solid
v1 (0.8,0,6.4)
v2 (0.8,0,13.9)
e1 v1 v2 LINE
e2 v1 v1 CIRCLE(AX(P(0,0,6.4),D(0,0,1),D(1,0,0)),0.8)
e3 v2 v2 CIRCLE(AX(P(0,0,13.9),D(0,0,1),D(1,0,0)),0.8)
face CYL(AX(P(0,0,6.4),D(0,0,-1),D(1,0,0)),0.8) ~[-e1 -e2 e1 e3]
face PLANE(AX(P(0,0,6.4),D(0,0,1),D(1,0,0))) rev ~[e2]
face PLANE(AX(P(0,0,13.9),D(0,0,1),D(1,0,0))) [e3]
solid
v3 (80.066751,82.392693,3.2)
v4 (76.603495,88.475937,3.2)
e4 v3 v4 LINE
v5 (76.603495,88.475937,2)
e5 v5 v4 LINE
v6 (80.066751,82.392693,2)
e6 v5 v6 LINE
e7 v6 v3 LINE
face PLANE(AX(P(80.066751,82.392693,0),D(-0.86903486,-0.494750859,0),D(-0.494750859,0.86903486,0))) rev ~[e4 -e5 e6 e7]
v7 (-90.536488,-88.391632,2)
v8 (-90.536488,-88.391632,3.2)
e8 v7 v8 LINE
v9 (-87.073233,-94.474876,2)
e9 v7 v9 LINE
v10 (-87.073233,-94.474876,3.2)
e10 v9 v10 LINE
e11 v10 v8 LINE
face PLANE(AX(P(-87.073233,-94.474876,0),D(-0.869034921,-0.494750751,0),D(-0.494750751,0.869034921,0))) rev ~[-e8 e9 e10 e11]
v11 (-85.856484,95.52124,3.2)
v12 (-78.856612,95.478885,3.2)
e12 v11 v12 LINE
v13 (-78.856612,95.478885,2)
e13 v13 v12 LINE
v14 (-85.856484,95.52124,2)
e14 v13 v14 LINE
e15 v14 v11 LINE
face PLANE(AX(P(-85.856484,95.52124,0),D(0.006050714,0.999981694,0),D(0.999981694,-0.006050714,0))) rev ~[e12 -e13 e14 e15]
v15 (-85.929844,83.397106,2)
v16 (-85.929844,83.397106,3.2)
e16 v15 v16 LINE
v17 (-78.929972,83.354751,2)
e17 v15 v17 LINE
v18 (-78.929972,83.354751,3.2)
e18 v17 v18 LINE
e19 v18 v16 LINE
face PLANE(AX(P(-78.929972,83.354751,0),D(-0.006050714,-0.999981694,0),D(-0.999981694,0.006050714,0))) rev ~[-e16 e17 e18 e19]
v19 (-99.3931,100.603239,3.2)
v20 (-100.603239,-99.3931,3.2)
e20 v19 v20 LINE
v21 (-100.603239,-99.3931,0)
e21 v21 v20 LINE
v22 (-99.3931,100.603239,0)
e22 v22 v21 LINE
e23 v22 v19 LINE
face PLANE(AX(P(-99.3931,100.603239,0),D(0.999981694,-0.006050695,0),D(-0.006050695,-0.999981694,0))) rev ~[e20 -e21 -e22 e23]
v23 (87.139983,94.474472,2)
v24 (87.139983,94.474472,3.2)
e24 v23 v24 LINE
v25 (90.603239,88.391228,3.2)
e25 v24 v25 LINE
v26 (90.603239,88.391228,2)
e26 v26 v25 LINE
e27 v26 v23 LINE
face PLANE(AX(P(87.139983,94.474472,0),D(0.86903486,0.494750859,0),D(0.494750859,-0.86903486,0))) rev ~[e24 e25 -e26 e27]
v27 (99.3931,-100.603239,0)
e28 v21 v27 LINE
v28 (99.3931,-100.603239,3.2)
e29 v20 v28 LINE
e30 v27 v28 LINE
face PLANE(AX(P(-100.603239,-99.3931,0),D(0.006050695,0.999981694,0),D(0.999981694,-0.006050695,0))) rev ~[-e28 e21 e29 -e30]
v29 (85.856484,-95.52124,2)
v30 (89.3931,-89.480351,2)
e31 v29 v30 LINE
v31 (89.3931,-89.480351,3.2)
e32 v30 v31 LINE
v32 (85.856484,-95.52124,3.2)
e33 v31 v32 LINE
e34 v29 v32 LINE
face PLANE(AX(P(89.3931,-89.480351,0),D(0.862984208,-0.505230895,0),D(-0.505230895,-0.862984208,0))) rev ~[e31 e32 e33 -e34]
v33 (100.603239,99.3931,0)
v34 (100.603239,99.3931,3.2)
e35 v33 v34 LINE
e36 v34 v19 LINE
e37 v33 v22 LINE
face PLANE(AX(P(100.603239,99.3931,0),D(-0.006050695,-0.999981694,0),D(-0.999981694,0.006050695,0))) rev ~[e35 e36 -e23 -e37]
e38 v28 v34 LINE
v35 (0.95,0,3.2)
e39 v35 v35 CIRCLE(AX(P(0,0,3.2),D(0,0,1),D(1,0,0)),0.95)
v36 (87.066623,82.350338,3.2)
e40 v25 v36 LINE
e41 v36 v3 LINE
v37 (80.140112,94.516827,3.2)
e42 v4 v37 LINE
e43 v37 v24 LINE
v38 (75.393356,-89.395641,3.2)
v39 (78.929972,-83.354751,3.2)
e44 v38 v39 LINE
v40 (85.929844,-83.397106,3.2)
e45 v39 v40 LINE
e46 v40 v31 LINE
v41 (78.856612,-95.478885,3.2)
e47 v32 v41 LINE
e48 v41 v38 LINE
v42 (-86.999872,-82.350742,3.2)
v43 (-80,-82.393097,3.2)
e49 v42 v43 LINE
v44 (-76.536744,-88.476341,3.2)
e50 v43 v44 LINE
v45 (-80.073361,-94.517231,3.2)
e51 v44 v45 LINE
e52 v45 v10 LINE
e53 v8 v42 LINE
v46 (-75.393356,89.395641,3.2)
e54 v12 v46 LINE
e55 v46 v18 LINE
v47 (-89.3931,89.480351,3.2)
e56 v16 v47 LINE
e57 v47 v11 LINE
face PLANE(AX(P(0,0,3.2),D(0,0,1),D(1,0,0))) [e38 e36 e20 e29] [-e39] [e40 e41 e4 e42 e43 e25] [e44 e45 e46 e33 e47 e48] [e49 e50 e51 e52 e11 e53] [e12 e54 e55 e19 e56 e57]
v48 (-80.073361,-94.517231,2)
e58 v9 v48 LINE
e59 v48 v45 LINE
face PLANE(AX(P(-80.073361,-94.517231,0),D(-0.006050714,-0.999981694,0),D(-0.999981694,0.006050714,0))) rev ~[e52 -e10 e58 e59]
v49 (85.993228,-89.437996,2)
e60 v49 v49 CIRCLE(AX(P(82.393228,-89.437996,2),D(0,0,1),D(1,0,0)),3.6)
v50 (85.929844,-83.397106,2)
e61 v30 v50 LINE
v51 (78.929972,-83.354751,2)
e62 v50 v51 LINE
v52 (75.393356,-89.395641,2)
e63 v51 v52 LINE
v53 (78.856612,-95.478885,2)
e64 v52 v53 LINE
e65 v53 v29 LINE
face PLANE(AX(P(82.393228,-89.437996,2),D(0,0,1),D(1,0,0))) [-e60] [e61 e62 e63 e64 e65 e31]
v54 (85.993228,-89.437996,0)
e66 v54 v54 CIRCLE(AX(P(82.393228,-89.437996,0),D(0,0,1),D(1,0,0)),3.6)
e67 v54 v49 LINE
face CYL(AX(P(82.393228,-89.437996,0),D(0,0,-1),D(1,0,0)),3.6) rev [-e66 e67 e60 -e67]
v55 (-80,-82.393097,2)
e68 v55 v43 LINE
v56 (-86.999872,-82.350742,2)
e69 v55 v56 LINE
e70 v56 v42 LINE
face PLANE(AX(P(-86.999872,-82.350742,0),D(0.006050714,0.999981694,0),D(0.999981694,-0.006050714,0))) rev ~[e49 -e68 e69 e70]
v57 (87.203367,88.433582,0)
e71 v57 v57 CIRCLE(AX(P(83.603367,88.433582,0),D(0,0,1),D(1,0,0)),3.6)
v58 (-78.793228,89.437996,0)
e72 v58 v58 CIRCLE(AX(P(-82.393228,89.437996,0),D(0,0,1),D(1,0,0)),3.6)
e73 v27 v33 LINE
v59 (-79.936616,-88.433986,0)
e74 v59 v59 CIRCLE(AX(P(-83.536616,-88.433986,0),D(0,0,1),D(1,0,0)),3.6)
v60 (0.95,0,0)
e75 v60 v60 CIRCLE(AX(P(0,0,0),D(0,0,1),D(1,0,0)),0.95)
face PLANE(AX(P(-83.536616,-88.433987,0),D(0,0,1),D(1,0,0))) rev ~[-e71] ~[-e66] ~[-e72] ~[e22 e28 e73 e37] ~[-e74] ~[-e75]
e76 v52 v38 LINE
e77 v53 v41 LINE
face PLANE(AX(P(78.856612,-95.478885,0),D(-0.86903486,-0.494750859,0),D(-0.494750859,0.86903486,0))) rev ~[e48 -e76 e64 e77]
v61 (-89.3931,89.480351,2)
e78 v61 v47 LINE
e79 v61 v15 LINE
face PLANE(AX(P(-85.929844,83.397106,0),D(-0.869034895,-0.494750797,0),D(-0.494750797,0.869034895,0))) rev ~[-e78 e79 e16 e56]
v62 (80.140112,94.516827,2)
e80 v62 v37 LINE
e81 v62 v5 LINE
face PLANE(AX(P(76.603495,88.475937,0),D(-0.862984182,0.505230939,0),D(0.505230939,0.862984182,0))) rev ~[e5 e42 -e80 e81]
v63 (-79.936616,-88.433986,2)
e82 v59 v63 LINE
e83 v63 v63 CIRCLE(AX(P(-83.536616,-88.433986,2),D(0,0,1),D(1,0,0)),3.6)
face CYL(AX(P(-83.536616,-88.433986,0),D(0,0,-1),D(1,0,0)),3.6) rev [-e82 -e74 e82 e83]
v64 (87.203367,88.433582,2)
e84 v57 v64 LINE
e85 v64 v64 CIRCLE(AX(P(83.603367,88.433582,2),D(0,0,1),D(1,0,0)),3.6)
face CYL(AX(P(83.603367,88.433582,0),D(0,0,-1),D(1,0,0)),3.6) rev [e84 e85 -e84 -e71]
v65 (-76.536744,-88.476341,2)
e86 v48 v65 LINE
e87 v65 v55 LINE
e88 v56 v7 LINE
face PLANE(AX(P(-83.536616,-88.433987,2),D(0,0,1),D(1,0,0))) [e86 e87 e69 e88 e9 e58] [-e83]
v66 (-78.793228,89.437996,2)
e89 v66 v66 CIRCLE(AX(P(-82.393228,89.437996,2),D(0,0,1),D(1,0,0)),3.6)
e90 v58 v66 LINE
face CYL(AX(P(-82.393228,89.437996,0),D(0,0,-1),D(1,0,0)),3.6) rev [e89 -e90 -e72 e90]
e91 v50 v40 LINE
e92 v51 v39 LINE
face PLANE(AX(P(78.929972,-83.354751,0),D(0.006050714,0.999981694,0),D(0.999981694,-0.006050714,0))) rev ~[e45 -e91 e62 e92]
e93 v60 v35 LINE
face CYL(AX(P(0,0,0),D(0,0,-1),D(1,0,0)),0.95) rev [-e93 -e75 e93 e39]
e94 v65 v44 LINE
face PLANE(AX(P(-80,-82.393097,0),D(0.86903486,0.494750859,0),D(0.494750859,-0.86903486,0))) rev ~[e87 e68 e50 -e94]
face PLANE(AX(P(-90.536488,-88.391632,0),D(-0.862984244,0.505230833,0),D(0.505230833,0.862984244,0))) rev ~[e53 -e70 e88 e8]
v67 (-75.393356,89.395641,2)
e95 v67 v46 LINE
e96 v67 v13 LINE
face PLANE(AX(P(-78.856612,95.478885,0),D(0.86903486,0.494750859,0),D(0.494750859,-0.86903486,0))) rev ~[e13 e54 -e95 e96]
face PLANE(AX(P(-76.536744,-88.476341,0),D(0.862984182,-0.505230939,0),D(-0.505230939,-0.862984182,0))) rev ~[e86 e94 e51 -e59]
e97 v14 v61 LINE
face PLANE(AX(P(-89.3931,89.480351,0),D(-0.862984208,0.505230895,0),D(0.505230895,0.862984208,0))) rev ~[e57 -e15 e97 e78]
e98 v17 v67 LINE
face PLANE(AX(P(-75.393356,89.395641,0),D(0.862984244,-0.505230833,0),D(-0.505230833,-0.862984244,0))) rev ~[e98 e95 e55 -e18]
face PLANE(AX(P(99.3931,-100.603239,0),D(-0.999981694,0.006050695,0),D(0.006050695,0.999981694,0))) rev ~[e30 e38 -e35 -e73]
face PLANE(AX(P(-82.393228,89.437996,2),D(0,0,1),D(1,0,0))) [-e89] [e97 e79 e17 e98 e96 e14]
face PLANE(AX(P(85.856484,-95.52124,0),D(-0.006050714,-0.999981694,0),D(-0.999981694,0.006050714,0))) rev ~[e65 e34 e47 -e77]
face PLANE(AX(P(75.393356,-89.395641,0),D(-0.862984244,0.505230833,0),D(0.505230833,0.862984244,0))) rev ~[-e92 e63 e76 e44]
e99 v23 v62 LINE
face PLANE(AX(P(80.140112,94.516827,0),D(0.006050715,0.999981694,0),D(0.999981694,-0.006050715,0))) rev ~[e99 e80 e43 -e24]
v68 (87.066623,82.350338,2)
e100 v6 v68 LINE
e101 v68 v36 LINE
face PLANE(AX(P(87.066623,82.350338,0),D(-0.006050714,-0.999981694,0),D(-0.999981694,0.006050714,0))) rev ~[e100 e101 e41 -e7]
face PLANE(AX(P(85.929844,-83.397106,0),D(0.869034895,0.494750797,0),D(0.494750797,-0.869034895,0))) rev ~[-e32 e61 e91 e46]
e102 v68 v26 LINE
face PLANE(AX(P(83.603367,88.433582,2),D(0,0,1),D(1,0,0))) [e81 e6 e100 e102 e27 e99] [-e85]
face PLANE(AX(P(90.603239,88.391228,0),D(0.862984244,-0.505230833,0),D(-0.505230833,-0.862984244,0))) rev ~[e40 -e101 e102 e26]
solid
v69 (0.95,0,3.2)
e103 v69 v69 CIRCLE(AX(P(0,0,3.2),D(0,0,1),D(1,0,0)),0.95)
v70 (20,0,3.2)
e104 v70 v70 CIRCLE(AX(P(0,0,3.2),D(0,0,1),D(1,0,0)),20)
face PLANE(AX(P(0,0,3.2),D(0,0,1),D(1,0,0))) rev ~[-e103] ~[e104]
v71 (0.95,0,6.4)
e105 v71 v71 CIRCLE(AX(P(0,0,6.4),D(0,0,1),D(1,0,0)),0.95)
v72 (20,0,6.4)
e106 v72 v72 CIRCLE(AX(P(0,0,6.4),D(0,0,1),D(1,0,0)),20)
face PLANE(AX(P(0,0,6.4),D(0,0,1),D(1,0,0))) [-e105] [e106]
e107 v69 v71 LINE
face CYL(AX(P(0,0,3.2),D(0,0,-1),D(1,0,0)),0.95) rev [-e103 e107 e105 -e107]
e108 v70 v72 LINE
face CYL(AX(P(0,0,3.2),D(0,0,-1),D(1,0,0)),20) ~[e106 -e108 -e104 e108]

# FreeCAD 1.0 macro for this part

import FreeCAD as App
import Part
import Sketcher

V = App.Vector


def add_polygon(sketch, points):
    """Adds a closed chain of lines whose ends are joined by coincident constraints."""
    first, n = sketch.GeometryCount, len(points)
    for a, b in zip(points, points[1:] + points[:1]):
        sketch.addGeometry(Part.LineSegment(App.Vector(*a, 0), App.Vector(*b, 0)), False)
    for i in range(n):
        sketch.addConstraint(Sketcher.Constraint("Coincident", first + i, 2, first + (i + 1) % n, 1))

doc = App.newDocument("Part")
params = doc.addObject("Spreadsheet::Sheet", "Params")
for row, (alias, value) in enumerate([
    ("sketch1_diameter", "1.9 mm"),
    ("sketch1_length", "200 mm"),
    ("sketch1_length2", "7 mm"),
    ("pad1_length", "3.2 mm"),
    ("sketch2_diameter", "7.2 mm"),
    ("sketch2_length", "7 mm"),
    ("pad2_length", "2 mm"),
    ("sketch3_diameter", "40 mm"),
    ("sketch3_diameter2", "1.9 mm"),
    ("pad3_length", "3.2 mm"),
    ("sketch4_diameter", "1.6 mm"),
    ("pad4_length", "7.5 mm"),
], start=1):
    params.set(f"A{row}", alias)
    params.set(f"B{row}", "=" + value)
    params.setAlias(f"B{row}", alias)

body = doc.addObject("PartDesign::Body", "Body")

sketch1 = body.newObject("Sketcher::SketchObject", "Sketch")
sketch1.AttachmentSupport = (doc.getObject("XY_Plane"), [""])
sketch1.MapMode = "FlatFace"
add_polygon(sketch1, [(100.6, 99.4), (-99.4, 100.6), (-100.6, -99.4), (99.4, -100.6)])
add_polygon(sketch1, [(-80.1, -94.5), (-87.1, -94.5), (-90.5, -88.4), (-87, -82.4), (-80, -82.4), (-76.5, -88.5)])
add_polygon(sketch1, [(78.9, -83.4), (85.9, -83.4), (89.4, -89.5), (85.9, -95.5), (78.9, -95.5), (75.4, -89.4)])
sketch1.addGeometry(Part.Circle(V(0, 0, 0), V(0, 0, 1), 0.9), False)
add_polygon(sketch1, [(-85.9, 95.5), (-78.9, 95.5), (-75.4, 89.4), (-78.9, 83.4), (-85.9, 83.4), (-89.4, 89.5)])
add_polygon(sketch1, [(80.1, 94.5), (87.1, 94.5), (90.6, 88.4), (87.1, 82.4), (80.1, 82.4), (76.6, 88.5)])
sketch1.addConstraint(Sketcher.Constraint("Coincident", 16, 3, -1, 1))
sketch1.addConstraint(Sketcher.Constraint("Symmetric", 0, 2, 2, 2, -1, 1))
sketch1.addConstraint(Sketcher.Constraint("Symmetric", 1, 2, 3, 2, -1, 1))
sketch1.addConstraint(Sketcher.Constraint("Symmetric", 13, 2, 17, 2, -1, 1))
sketch1.addConstraint(Sketcher.Constraint("Symmetric", 14, 2, 18, 2, -1, 1))
sketch1.addConstraint(Sketcher.Constraint("Symmetric", 15, 2, 19, 2, -1, 1))
sketch1.addConstraint(Sketcher.Constraint("Symmetric", 10, 2, 20, 2, -1, 1))
sketch1.addConstraint(Sketcher.Constraint("Symmetric", 11, 2, 21, 2, -1, 1))
sketch1.addConstraint(Sketcher.Constraint("Symmetric", 12, 2, 22, 2, -1, 1))
sketch1.addConstraint(Sketcher.Constraint("Perpendicular", 0, 1))
sketch1.addConstraint(Sketcher.Constraint("Perpendicular", 3, 4))
sketch1.addConstraint(Sketcher.Constraint("Parallel", 4, 7))
sketch1.addConstraint(Sketcher.Constraint("Parallel", 5, 8))
sketch1.addConstraint(Sketcher.Constraint("Parallel", 6, 9))
sketch1.addConstraint(Sketcher.Constraint("Parallel", 7, 10))
sketch1.addConstraint(Sketcher.Constraint("Parallel", 8, 11))
sketch1.addConstraint(Sketcher.Constraint("Parallel", 9, 12))
sketch1.addConstraint(Sketcher.Constraint("Parallel", 10, 13))
sketch1.addConstraint(Sketcher.Constraint("Parallel", 11, 14))
sketch1.addConstraint(Sketcher.Constraint("Parallel", 12, 15))
sketch1.addConstraint(Sketcher.Constraint("Parallel", 20, 23))
sketch1.addConstraint(Sketcher.Constraint("Parallel", 21, 24))
sketch1.addConstraint(Sketcher.Constraint("Parallel", 22, 25))
sketch1.addConstraint(Sketcher.Constraint("Parallel", 23, 26))
sketch1.addConstraint(Sketcher.Constraint("Parallel", 24, 27))
sketch1.addConstraint(Sketcher.Constraint("Parallel", 25, 28))
sketch1.addConstraint(Sketcher.Constraint("Equal", 0, 1))
sketch1.addConstraint(Sketcher.Constraint("Equal", 4, 5))
sketch1.addConstraint(Sketcher.Constraint("Equal", 5, 6))
sketch1.addConstraint(Sketcher.Constraint("Equal", 6, 7))
sketch1.addConstraint(Sketcher.Constraint("Equal", 9, 10))
sketch1.addConstraint(Sketcher.Constraint("Equal", 10, 11))
sketch1.addConstraint(Sketcher.Constraint("Equal", 11, 12))
sketch1.addConstraint(Sketcher.Constraint("Equal", 12, 13))
sketch1.addConstraint(Sketcher.Constraint("Equal", 22, 23))
sketch1.addConstraint(Sketcher.Constraint("Equal", 23, 24))
sketch1.addConstraint(Sketcher.Constraint("Equal", 24, 25))
sketch1.addConstraint(Sketcher.Constraint("Equal", 25, 26))
sketch1.addConstraint(Sketcher.Constraint("Diameter", 16, 1.9))
sketch1.addConstraint(Sketcher.Constraint("Distance", 0, 200.0))
sketch1.addConstraint(Sketcher.Constraint("Distance", 4, 7.0))
sketch1.addConstraint(Sketcher.Constraint("DistanceX", 7, 2, -1, 1, 80.0))
sketch1.addConstraint(Sketcher.Constraint("DistanceX", 11, 2, 2, 2, 10.0))
sketch1.addConstraint(Sketcher.Constraint("DistanceX", 24, 2, 3, 2, 10.0))
sketch1.addConstraint(Sketcher.Constraint("DistanceY", 2, 2, 12, 2, 5.081999))
sketch1.addConstraint(Sketcher.Constraint("DistanceX", 0, 2, -1, 1, 99.3931))
sketch1.addConstraint(Sketcher.Constraint("DistanceY", 8, 2, 6, 2, 6.125599))
sketch1.addConstraint(Sketcher.Constraint("DistanceY", 12, 2, 8, 2, 7.044899))
sketch1.addConstraint(Sketcher.Constraint("DistanceX", 5, 2, -1, 1, 90.536488))
sketch1.addConstraint(Sketcher.Constraint("DistanceY", -1, 1, 24, 2, 88.391228))
sketch1.setExpression("Constraints[66]", "Params.sketch1_diameter")
sketch1.setExpression("Constraints[67]", "Params.sketch1_length")
sketch1.setExpression("Constraints[68]", "Params.sketch1_length2")
pad1 = body.newObject("PartDesign::Pad", "Pad")
pad1.Profile = sketch1
pad1.setExpression("Length", "Params.pad1_length")

sketch2 = body.newObject("Sketcher::SketchObject", "Sketch001")
sketch2.AttachmentSupport = (doc.getObject("XY_Plane"), [""])
sketch2.MapMode = "FlatFace"
add_polygon(sketch2, [(-87, -82.4), (-90.5, -88.4), (-87.1, -94.5), (-80.1, -94.5), (-76.5, -88.5), (-80, -82.4)])
sketch2.addGeometry(Part.Circle(V(-83.5, -88.4, 0), V(0, 0, 1), 3.6), False)
add_polygon(sketch2, [(-78.9, 83.4), (-75.4, 89.4), (-78.9, 95.5), (-85.9, 95.5), (-89.4, 89.5), (-85.9, 83.4)])
sketch2.addGeometry(Part.Circle(V(-82.4, 89.4, 0), V(0, 0, 1), 3.6), False)
add_polygon(sketch2, [(85.9, -95.5), (89.4, -89.5), (85.9, -83.4), (78.9, -83.4), (75.4, -89.4), (78.9, -95.5)])
sketch2.addGeometry(Part.Circle(V(82.4, -89.4, 0), V(0, 0, 1), 3.6), False)
add_polygon(sketch2, [(87.1, 82.4), (90.6, 88.4), (87.1, 94.5), (80.1, 94.5), (76.6, 88.5), (80.1, 82.4)])
sketch2.addGeometry(Part.Circle(V(83.6, 88.4, 0), V(0, 0, 1), 3.6), False)
sketch2.addConstraint(Sketcher.Constraint("Equal", 6, 13))
sketch2.addConstraint(Sketcher.Constraint("Equal", 13, 20))
sketch2.addConstraint(Sketcher.Constraint("Equal", 20, 27))
sketch2.addConstraint(Sketcher.Constraint("Symmetric", 13, 3, 20, 3, -1, 1))
sketch2.addConstraint(Sketcher.Constraint("Symmetric", 10, 2, 14, 2, -1, 1))
sketch2.addConstraint(Sketcher.Constraint("Symmetric", 11, 2, 15, 2, -1, 1))
sketch2.addConstraint(Sketcher.Constraint("Symmetric", 12, 2, 16, 2, -1, 1))
sketch2.addConstraint(Sketcher.Constraint("Symmetric", 7, 2, 17, 2, -1, 1))
sketch2.addConstraint(Sketcher.Constraint("Symmetric", 8, 2, 18, 2, -1, 1))
sketch2.addConstraint(Sketcher.Constraint("Symmetric", 9, 2, 19, 2, -1, 1))
sketch2.addConstraint(Sketcher.Constraint("Parallel", 0, 3))
sketch2.addConstraint(Sketcher.Constraint("Parallel", 1, 4))
sketch2.addConstraint(Sketcher.Constraint("Parallel", 2, 5))
sketch2.addConstraint(Sketcher.Constraint("Parallel", 3, 7))
sketch2.addConstraint(Sketcher.Constraint("Parallel", 4, 8))
sketch2.addConstraint(Sketcher.Constraint("Parallel", 5, 9))
sketch2.addConstraint(Sketcher.Constraint("Parallel", 7, 10))
sketch2.addConstraint(Sketcher.Constraint("Parallel", 8, 11))
sketch2.addConstraint(Sketcher.Constraint("Parallel", 9, 12))
sketch2.addConstraint(Sketcher.Constraint("Parallel", 17, 21))
sketch2.addConstraint(Sketcher.Constraint("Parallel", 18, 22))
sketch2.addConstraint(Sketcher.Constraint("Parallel", 19, 23))
sketch2.addConstraint(Sketcher.Constraint("Parallel", 21, 24))
sketch2.addConstraint(Sketcher.Constraint("Parallel", 22, 25))
sketch2.addConstraint(Sketcher.Constraint("Parallel", 23, 26))
sketch2.addConstraint(Sketcher.Constraint("Equal", 0, 1))
sketch2.addConstraint(Sketcher.Constraint("Equal", 1, 2))
sketch2.addConstraint(Sketcher.Constraint("Equal", 2, 3))
sketch2.addConstraint(Sketcher.Constraint("Equal", 5, 7))
sketch2.addConstraint(Sketcher.Constraint("Equal", 7, 8))
sketch2.addConstraint(Sketcher.Constraint("Equal", 8, 9))
sketch2.addConstraint(Sketcher.Constraint("Equal", 9, 10))
sketch2.addConstraint(Sketcher.Constraint("Equal", 19, 21))
sketch2.addConstraint(Sketcher.Constraint("Equal", 21, 22))
sketch2.addConstraint(Sketcher.Constraint("Equal", 22, 23))
sketch2.addConstraint(Sketcher.Constraint("Equal", 23, 24))
sketch2.addConstraint(Sketcher.Constraint("Diameter", 6, 7.2))
sketch2.addConstraint(Sketcher.Constraint("Distance", 0, 7.0))
sketch2.addConstraint(Sketcher.Constraint("DistanceX", 4, 2, -1, 1, 80.0))
sketch2.addConstraint(Sketcher.Constraint("DistanceX", 10, 2, -1, 1, 89.3931))
sketch2.addConstraint(Sketcher.Constraint("DistanceX", 1, 2, 27, 3, 170.6766))
sketch2.addConstraint(Sketcher.Constraint("DistanceY", 2, 2, 0, 2, 6.125599))
sketch2.addConstraint(Sketcher.Constraint("DistanceX", 3, 2, 17, 2, 151.9301))
sketch2.addConstraint(Sketcher.Constraint("DistanceY", 17, 2, 3, 2, 0.9193))
sketch2.addConstraint(Sketcher.Constraint("DistanceY", -1, 1, 27, 3, 88.433582))
sketch2.addConstraint(Sketcher.Constraint("DistanceX", 0, 2, -1, 1, 90.536488))
sketch2.addConstraint(Sketcher.Constraint("DistanceY", 0, 2, -1, 1, 88.391632))
sketch2.addConstraint(Sketcher.Constraint("DistanceX", -1, 1, 21, 2, 90.603239))
sketch2.addConstraint(Sketcher.Constraint("DistanceY", -1, 1, 21, 2, 88.391228))
sketch2.addConstraint(Sketcher.Constraint("DistanceX", 6, 3, 13, 3, 1.143388))
sketch2.addConstraint(Sketcher.Constraint("DistanceY", 6, 3, 13, 3, 177.871982))
sketch2.addConstraint(Sketcher.Constraint("DistanceY", 20, 3, 6, 3, 1.00401))
sketch2.addConstraint(Sketcher.Constraint("DistanceX", 20, 3, 27, 3, 1.210139))
sketch2.setExpression("Constraints[60]", "Params.sketch2_diameter")
sketch2.setExpression("Constraints[61]", "Params.sketch2_length")
pad2 = body.newObject("PartDesign::Pad", "Pad001")
pad2.Profile = sketch2
pad2.setExpression("Length", "Params.pad2_length")
body2 = doc.addObject("PartDesign::Body", "Body001")

sketch3 = body2.newObject("Sketcher::SketchObject", "Sketch002")
sketch3.AttachmentSupport = (doc.getObject("XY_Plane001"), [""])
sketch3.MapMode = "FlatFace"
sketch3.AttachmentOffset = App.Placement(V(0, 0, 3.2), App.Rotation())
sketch3.addGeometry(Part.Circle(V(0, 0, 0), V(0, 0, 1), 20), False)
sketch3.addGeometry(Part.Circle(V(0, 0, 0), V(0, 0, 1), 0.9), False)
sketch3.addConstraint(Sketcher.Constraint("Coincident", 0, 3, -1, 1))
sketch3.addConstraint(Sketcher.Constraint("Coincident", 1, 3, -1, 1))
sketch3.addConstraint(Sketcher.Constraint("Diameter", 0, 40.0))
sketch3.addConstraint(Sketcher.Constraint("Diameter", 1, 1.9))
sketch3.setExpression("Constraints[2]", "Params.sketch3_diameter")
sketch3.setExpression("Constraints[3]", "Params.sketch3_diameter2")
pad3 = body2.newObject("PartDesign::Pad", "Pad002")
pad3.Profile = sketch3
pad3.setExpression("Length", "Params.pad3_length")
body3 = doc.addObject("PartDesign::Body", "Body002")

sketch4 = body3.newObject("Sketcher::SketchObject", "Sketch003")
sketch4.AttachmentSupport = (doc.getObject("XY_Plane002"), [""])
sketch4.MapMode = "FlatFace"
sketch4.AttachmentOffset = App.Placement(V(0, 0, 6.4), App.Rotation())
sketch4.addGeometry(Part.Circle(V(0, 0, 0), V(0, 0, 1), 0.8), False)
sketch4.addConstraint(Sketcher.Constraint("Coincident", 0, 3, -1, 1))
sketch4.addConstraint(Sketcher.Constraint("Diameter", 0, 1.6))
sketch4.setExpression("Constraints[1]", "Params.sketch4_diameter")
pad4 = body3.newObject("PartDesign::Pad", "Pad003")
pad4.Profile = sketch4
pad4.setExpression("Length", "Params.pad4_length")

doc.recompute()
